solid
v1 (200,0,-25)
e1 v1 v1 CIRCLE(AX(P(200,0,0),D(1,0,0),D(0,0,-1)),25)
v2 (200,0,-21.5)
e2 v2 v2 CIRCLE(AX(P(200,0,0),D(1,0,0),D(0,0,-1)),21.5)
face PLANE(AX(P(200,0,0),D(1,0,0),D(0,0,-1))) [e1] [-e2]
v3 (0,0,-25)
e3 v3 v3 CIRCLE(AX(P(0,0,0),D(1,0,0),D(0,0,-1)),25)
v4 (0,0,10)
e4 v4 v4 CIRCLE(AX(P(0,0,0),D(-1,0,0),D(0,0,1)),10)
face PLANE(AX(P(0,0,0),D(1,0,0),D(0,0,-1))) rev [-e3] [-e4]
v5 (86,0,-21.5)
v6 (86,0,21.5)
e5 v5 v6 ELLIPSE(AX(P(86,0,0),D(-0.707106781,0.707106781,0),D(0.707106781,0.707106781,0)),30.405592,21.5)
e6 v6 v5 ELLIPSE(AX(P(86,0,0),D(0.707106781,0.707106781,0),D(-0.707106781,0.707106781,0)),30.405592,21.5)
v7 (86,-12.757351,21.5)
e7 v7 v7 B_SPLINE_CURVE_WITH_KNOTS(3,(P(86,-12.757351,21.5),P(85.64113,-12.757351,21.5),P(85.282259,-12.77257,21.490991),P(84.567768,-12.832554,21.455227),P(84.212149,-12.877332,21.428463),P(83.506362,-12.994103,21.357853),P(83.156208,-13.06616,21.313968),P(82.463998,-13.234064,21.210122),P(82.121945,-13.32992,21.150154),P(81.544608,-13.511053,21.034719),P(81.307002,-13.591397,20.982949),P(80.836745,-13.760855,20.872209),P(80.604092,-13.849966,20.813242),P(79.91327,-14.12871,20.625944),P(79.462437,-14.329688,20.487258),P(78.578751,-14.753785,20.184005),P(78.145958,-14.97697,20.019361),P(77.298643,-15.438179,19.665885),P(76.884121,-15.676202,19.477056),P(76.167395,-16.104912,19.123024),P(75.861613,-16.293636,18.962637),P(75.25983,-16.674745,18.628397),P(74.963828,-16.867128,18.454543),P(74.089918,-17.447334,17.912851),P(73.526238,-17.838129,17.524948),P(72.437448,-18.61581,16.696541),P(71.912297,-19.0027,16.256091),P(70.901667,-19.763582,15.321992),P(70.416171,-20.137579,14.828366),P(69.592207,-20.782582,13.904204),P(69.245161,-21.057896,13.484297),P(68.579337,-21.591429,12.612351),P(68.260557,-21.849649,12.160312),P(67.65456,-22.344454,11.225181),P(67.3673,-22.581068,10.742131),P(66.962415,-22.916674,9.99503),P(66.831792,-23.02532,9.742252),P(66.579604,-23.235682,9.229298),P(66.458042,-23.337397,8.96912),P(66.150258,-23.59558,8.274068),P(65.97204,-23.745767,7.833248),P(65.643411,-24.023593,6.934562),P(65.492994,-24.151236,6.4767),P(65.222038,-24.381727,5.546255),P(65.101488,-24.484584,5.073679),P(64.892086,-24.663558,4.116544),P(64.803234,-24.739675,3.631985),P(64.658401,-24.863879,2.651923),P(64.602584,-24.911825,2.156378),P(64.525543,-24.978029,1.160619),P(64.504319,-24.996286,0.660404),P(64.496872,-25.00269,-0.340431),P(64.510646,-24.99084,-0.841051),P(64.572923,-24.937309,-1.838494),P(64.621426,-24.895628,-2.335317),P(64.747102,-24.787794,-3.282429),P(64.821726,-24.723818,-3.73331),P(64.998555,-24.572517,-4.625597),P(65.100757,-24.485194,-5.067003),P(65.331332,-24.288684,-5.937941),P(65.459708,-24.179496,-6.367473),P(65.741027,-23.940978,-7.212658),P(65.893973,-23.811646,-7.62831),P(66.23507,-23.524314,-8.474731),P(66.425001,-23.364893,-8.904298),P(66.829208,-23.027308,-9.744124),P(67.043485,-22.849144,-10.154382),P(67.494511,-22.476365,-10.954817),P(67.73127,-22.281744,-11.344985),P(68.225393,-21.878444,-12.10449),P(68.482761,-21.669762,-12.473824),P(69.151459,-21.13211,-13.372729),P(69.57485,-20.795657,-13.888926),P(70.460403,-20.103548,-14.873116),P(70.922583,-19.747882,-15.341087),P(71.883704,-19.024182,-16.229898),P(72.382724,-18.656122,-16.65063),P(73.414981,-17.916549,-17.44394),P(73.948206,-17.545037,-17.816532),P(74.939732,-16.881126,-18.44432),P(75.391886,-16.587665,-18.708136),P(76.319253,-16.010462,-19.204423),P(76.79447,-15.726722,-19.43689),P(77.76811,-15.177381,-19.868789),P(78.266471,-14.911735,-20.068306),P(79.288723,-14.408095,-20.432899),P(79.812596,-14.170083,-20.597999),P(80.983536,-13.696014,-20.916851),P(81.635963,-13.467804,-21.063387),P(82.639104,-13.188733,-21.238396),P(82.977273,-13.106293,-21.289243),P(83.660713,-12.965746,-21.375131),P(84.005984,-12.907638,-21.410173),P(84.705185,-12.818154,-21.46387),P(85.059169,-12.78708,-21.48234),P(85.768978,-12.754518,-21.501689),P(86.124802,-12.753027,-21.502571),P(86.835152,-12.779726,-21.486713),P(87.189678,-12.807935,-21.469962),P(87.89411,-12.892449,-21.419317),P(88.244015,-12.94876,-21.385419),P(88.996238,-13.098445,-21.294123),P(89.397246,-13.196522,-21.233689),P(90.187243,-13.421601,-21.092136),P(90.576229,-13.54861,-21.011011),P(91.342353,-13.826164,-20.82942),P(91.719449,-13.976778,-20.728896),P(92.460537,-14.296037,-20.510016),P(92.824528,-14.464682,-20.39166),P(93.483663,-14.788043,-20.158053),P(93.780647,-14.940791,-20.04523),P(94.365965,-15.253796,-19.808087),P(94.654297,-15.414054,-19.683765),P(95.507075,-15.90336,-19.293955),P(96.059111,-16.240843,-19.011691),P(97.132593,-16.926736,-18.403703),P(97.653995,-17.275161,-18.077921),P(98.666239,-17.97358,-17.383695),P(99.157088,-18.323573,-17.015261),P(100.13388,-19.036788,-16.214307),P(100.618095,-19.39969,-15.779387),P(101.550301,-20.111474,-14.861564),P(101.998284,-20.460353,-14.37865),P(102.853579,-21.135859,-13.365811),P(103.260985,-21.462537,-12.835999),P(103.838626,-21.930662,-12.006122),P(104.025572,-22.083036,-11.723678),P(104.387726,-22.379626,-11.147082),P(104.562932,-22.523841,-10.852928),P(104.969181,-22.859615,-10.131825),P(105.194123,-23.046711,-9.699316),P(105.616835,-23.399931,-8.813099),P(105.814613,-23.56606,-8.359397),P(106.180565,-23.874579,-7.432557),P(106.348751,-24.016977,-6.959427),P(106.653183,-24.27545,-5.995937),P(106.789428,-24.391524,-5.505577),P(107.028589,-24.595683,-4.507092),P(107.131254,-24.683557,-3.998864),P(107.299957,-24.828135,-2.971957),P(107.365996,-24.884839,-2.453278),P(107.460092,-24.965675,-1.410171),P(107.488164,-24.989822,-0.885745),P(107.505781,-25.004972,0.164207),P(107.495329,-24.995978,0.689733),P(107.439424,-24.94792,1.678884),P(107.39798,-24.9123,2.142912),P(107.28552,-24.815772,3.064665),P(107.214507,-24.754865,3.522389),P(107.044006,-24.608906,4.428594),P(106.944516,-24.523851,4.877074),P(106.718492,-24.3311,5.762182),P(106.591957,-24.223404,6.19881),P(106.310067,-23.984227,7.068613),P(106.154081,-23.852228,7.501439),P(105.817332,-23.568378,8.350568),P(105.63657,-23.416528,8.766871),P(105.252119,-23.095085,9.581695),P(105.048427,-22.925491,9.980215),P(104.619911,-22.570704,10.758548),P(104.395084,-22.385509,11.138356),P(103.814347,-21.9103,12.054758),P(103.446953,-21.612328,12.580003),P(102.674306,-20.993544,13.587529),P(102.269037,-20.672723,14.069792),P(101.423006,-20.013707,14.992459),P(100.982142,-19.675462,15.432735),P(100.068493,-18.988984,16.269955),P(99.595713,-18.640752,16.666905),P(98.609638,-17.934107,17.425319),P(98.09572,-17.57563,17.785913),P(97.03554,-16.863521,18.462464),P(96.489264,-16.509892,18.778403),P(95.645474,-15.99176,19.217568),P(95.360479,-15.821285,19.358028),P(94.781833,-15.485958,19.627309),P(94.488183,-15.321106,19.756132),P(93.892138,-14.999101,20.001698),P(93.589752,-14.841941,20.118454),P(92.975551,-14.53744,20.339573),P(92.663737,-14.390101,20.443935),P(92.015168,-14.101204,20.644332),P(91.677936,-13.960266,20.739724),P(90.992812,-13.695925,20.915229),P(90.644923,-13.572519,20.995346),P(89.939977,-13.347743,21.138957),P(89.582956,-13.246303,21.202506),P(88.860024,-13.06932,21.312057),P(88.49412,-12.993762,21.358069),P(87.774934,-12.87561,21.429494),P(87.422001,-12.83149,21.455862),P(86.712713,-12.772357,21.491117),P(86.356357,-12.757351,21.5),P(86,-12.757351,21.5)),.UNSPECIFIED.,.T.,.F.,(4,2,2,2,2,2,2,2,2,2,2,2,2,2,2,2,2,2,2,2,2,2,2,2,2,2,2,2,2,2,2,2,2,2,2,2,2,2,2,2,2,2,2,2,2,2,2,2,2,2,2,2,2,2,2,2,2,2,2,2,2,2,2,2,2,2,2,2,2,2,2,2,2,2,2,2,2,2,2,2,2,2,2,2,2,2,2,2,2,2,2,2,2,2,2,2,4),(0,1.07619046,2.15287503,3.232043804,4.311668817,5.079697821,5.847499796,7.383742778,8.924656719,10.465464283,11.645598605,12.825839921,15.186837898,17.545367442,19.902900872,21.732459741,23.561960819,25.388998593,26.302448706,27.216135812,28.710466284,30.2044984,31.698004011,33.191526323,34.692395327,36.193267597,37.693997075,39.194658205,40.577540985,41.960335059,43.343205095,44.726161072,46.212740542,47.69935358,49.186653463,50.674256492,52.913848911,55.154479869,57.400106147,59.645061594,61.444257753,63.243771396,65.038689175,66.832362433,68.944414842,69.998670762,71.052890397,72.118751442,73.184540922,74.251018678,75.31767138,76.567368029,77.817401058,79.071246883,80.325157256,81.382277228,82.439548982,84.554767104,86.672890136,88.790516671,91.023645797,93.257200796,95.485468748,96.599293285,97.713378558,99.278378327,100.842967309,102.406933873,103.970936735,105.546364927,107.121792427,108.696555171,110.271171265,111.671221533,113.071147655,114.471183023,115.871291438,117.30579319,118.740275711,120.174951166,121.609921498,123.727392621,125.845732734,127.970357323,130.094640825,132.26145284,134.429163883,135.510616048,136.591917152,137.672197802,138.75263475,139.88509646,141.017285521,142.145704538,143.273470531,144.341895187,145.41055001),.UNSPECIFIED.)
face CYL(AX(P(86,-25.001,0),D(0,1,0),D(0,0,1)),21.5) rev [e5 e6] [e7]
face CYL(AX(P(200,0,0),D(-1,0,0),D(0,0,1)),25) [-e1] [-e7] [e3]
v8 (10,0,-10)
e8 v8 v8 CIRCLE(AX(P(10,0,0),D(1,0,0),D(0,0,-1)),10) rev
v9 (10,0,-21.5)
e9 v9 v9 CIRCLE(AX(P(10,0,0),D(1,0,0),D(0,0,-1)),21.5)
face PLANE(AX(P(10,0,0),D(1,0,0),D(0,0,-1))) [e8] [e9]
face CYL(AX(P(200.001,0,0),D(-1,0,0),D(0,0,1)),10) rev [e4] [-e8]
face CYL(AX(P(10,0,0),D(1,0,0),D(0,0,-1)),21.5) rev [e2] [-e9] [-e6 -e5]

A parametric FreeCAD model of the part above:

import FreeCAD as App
import Part
import Sketcher

V = App.Vector
Q = App.Units.Quantity

doc = App.newDocument("Part")
body = doc.addObject("PartDesign::Body", "Body")

# Sketch on YZ plane
sketch1 = body.newObject("Sketcher::SketchObject", "Sketch")
sketch1.AttachmentSupport = (doc.getObject("YZ_Plane"), [""])
sketch1.MapMode = "FlatFace"
sketch1.addGeometry(Part.Circle(V(0, 0, 0), V(0, 0, 1), 25), False)
sketch1.addConstraint(Sketcher.Constraint("Coincident", 0, 3, -1, 1))
sketch1.addConstraint(Sketcher.Constraint("Diameter", 0, Q("50 mm")))
pad1 = body.newObject("PartDesign::Pad", "Pad")
pad1.Profile = sketch1
pad1.Length = 200

# Sketch on YZ plane
sketch2 = body.newObject("Sketcher::SketchObject", "Sketch001")
sketch2.AttachmentSupport = (doc.getObject("YZ_Plane"), [""])
sketch2.MapMode = "FlatFace"
sketch2.AttachmentOffset = App.Placement(V(0, 0, 200), App.Rotation())
sketch2.addGeometry(Part.Circle(V(0, 0, 0), V(0, 0, 1), 21.5), False)
sketch2.addConstraint(Sketcher.Constraint("Coincident", 0, 3, -1, 1))
sketch2.addConstraint(Sketcher.Constraint("Diameter", 0, Q("43 mm")))
pocket1 = body.newObject("PartDesign::Pocket", "Pocket")
pocket1.Profile = sketch2
pocket1.Length = 190

# Sketch on YZ plane
sketch3 = body.newObject("Sketcher::SketchObject", "Sketch002")
sketch3.AttachmentSupport = (doc.getObject("YZ_Plane"), [""])
sketch3.MapMode = "FlatFace"
sketch3.addGeometry(Part.Circle(V(0, 0, 0), V(0, 0, 1), 10), False)
sketch3.addConstraint(Sketcher.Constraint("Coincident", 0, 3, -1, 1))
sketch3.addConstraint(Sketcher.Constraint("Diameter", 0, Q("20 mm")))
pocket2 = body.newObject("PartDesign::Pocket", "Pocket001")
pocket2.Profile = sketch3
pocket2.Type = "UpToFirst"
pocket2.Reversed = True

# Sketch on XZ plane
sketch4 = body.newObject("Sketcher::SketchObject", "Sketch003")
sketch4.AttachmentSupport = (doc.getObject("XZ_Plane"), [""])
sketch4.MapMode = "FlatFace"
sketch4.addGeometry(Part.Circle(V(86, 0, 0), V(0, 0, 1), 21.5), False)
sketch4.addConstraint(Sketcher.Constraint("PointOnObject", 0, 3, -1))
sketch4.addConstraint(Sketcher.Constraint("Diameter", 0, Q("43 mm")))
sketch4.addConstraint(Sketcher.Constraint("DistanceX", -1, 1, 0, 3, Q("86 mm")))
pocket3 = body.newObject("PartDesign::Pocket", "Pocket002")
pocket3.Profile = sketch4
pocket3.Length = 25
pocket3.Reversed = True

doc.recompute()
